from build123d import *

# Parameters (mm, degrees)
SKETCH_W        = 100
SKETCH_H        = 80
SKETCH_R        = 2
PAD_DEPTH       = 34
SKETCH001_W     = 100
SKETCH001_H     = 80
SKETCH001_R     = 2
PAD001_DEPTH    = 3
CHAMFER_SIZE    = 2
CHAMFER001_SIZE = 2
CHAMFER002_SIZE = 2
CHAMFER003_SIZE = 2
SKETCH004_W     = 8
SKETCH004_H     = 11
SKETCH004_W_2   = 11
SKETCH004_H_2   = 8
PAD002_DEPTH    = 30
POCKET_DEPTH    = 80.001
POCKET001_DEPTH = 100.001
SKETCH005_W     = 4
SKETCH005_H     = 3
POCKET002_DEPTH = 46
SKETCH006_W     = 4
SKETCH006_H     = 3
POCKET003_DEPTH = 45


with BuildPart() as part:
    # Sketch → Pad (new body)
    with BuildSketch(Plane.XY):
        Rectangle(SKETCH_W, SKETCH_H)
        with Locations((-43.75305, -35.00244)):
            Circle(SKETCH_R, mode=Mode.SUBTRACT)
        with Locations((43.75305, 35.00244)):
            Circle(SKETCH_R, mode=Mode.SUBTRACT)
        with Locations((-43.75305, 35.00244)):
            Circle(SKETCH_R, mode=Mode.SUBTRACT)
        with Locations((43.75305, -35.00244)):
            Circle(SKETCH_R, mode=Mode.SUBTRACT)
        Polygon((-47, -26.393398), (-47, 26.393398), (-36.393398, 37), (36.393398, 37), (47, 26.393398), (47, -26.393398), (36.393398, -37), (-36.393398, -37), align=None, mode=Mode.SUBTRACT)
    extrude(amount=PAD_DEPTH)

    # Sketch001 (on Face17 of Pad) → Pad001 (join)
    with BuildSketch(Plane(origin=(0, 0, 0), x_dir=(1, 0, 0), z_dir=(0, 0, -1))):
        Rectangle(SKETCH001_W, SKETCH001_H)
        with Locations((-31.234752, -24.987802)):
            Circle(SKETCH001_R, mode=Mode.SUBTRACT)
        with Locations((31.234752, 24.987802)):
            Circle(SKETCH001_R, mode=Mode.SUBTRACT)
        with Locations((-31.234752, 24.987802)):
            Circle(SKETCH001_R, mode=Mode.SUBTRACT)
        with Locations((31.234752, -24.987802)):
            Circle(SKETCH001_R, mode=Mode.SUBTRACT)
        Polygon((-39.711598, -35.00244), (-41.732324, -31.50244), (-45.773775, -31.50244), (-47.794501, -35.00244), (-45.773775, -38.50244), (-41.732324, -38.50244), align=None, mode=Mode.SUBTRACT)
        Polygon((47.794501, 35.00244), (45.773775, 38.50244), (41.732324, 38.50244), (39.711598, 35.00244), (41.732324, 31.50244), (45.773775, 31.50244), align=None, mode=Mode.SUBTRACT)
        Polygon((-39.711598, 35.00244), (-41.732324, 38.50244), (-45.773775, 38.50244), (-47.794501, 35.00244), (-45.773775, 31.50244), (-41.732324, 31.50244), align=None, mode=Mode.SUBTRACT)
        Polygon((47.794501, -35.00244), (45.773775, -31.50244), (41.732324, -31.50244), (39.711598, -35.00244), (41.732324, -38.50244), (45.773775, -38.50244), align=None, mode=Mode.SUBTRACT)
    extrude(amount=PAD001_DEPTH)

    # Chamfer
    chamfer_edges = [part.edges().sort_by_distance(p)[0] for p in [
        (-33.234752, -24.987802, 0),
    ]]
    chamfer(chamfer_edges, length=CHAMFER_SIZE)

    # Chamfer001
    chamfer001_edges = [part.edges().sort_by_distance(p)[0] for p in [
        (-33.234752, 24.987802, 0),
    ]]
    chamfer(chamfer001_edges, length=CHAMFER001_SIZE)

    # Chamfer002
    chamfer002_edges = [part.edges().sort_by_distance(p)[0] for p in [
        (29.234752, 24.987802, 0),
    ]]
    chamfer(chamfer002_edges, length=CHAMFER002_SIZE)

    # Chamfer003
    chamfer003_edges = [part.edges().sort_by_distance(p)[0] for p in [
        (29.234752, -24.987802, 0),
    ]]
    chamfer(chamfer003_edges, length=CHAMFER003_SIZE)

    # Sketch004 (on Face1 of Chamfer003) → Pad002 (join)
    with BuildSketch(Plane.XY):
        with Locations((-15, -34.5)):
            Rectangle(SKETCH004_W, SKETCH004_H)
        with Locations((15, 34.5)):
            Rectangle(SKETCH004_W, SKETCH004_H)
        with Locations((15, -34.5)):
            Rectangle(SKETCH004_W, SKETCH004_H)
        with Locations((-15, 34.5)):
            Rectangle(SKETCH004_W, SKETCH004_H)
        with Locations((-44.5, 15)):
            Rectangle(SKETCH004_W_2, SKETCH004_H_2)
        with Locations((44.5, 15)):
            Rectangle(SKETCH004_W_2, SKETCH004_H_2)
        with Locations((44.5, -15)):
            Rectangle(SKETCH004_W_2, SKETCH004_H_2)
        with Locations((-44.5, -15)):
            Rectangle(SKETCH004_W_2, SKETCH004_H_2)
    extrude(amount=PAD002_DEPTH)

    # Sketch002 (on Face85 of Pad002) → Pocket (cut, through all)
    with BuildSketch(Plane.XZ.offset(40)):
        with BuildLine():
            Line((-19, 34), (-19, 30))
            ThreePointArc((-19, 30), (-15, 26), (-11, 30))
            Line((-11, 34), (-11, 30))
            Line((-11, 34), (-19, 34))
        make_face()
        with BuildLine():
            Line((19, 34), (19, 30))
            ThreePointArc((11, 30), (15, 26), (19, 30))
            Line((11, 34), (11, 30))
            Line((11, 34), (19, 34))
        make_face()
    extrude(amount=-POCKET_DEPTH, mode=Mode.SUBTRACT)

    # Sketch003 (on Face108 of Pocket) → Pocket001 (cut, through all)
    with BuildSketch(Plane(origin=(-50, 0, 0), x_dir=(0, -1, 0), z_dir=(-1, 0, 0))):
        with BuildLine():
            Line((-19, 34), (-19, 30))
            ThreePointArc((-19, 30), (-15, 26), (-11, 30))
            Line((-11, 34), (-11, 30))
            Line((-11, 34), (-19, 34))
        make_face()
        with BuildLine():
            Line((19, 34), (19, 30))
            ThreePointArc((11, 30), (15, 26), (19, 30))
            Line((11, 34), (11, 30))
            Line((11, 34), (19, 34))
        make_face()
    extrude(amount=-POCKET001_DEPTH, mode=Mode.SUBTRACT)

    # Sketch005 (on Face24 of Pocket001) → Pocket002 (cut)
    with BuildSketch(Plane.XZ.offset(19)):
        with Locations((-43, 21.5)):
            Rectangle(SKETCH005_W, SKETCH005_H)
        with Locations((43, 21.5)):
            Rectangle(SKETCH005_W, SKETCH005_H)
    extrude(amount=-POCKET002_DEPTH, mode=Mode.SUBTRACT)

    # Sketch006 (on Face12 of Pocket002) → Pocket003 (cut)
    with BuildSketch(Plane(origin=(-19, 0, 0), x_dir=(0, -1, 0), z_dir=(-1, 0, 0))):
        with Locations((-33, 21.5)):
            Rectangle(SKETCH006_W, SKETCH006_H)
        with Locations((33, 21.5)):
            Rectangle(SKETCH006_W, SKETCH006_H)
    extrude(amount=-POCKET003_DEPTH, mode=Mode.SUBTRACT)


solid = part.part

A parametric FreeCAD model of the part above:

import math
import FreeCAD as App
import Part
import Sketcher
Q = App.Units.Quantity


def edges_at(feature, points):
    """Names of the edges that pass closest to the given points."""
    edges = feature.Shape.Edges
    near = lambda p: min(range(len(edges)), key=lambda i: edges[i].distToShape(Part.Vertex(*p))[0])
    return sorted({f"Edge{near(p) + 1}" for p in points})

doc = App.newDocument("Part")
params = doc.addObject("Spreadsheet::Sheet", "Params")
for row, (alias, value) in enumerate([
    ("sketch1_diameter", "4 mm"),
    ("sketch1_width", "100 mm"),
    ("sketch1_height", "80 mm"),
    ("sketch1_length", "15 mm"),
    ("pad1_length", "34 mm"),
    ("sketch2_diameter", "4 mm"),
    ("sketch2_width", "100 mm"),
    ("sketch2_height", "80 mm"),
    ("pad2_length", "3 mm"),
    ("chamfer_size", "2 mm"),
    ("chamfer2_size", "2 mm"),
    ("chamfer3_size", "2 mm"),
    ("chamfer4_size", "2 mm"),
    ("sketch3_width", "8 mm"),
    ("sketch3_width2", "11 mm"),
    ("pad3_length", "30 mm"),
    ("sketch4_radius", "4 mm"),
    ("sketch4_height", "4 mm"),
    ("sketch5_radius", "4 mm"),
    ("sketch5_height", "4 mm"),
    ("sketch6_width", "4 mm"),
    ("sketch6_height", "3 mm"),
    ("pocket3_length", "46 mm"),
    ("sketch7_width", "4 mm"),
    ("sketch7_height", "3 mm"),
    ("pocket4_length", "45 mm"),
], start=1):
    params.set(f"A{row}", alias)
    params.set(f"B{row}", "=" + value)
    params.setAlias(f"B{row}", alias)

body = doc.addObject("PartDesign::Body", "Body")

# Sketch on XY plane
sketch1 = body.newObject("Sketcher::SketchObject", "Sketch")
sketch1.AttachmentSupport = (doc.getObject("XY_Plane"), [""])
sketch1.MapMode = "FlatFace"
sketch1.addGeometry([
    Part.LineSegment(App.Vector(-50, 40, 0), App.Vector(-50, -40, 0)),  # 0
    Part.LineSegment(App.Vector(-50, -40, 0), App.Vector(50, -40, 0)),  # 1
    Part.LineSegment(App.Vector(50, -40, 0), App.Vector(50, 40, 0)),  # 2
    Part.LineSegment(App.Vector(50, 40, 0), App.Vector(-50, 40, 0)),  # 3
    Part.Circle(App.Vector(-43.8, -35, 0), App.Vector(0, 0, 1), 2),  # 4
    Part.Circle(App.Vector(43.8, -35, 0), App.Vector(0, 0, 1), 2),  # 5
    Part.Circle(App.Vector(-43.8, 35, 0), App.Vector(0, 0, 1), 2),  # 6
    Part.LineSegment(App.Vector(-36.4, -37, 0), App.Vector(-47, -26.4, 0)),  # 7
    Part.LineSegment(App.Vector(-47, -26.4, 0), App.Vector(-47, 26.4, 0)),  # 8
    Part.LineSegment(App.Vector(-47, 26.4, 0), App.Vector(-36.4, 37, 0)),  # 9
    Part.LineSegment(App.Vector(-36.4, 37, 0), App.Vector(36.4, 37, 0)),  # 10
    Part.LineSegment(App.Vector(36.4, 37, 0), App.Vector(47, 26.4, 0)),  # 11
    Part.LineSegment(App.Vector(47, 26.4, 0), App.Vector(47, -26.4, 0)),  # 12
    Part.LineSegment(App.Vector(47, -26.4, 0), App.Vector(36.4, -37, 0)),  # 13
    Part.LineSegment(App.Vector(36.4, -37, 0), App.Vector(-36.4, -37, 0)),  # 14
    Part.Circle(App.Vector(43.8, 35, 0), App.Vector(0, 0, 1), 2),  # 15
], False)
sketch1.addConstraint([
    Sketcher.Constraint("Coincident", 0, 2, 1, 1),
    Sketcher.Constraint("Coincident", 1, 2, 2, 1),
    Sketcher.Constraint("Coincident", 2, 2, 3, 1),
    Sketcher.Constraint("Coincident", 3, 2, 0, 1),
    Sketcher.Constraint("Coincident", 7, 2, 8, 1),
    Sketcher.Constraint("Coincident", 8, 2, 9, 1),
    Sketcher.Constraint("Coincident", 9, 2, 10, 1),
    Sketcher.Constraint("Coincident", 10, 2, 11, 1),
    Sketcher.Constraint("Coincident", 11, 2, 12, 1),
    Sketcher.Constraint("Coincident", 12, 2, 13, 1),
    Sketcher.Constraint("Coincident", 13, 2, 14, 1),
    Sketcher.Constraint("Coincident", 14, 2, 7, 1),
    Sketcher.Constraint("Vertical", 0),
    Sketcher.Constraint("Horizontal", 1),
    Sketcher.Constraint("Vertical", 2),
    Sketcher.Constraint("Horizontal", 3),
    Sketcher.Constraint("Vertical", 8),
    Sketcher.Constraint("Horizontal", 10),
    Sketcher.Constraint("Vertical", 12),
    Sketcher.Constraint("Horizontal", 14),
    Sketcher.Constraint("Equal", 4, 5),
    Sketcher.Constraint("Equal", 5, 6),
    Sketcher.Constraint("Equal", 6, 15),
    Sketcher.Constraint("Symmetric", 5, 3, 6, 3, -1, 1),
    Sketcher.Constraint("Symmetric", 4, 3, 15, 3, -1, 1),
    Sketcher.Constraint("Symmetric", 0, 2, 2, 2, -1, 1),
    Sketcher.Constraint("Symmetric", 7, 2, 11, 2, -1, 1),
    Sketcher.Constraint("Symmetric", 9, 2, 13, 2, -1, 1),
    Sketcher.Constraint("Symmetric", 4, 3, 5, 3, -2),
    Sketcher.Constraint("Perpendicular", 7, 9),
    Sketcher.Constraint("Perpendicular", 9, 11),
    Sketcher.Constraint("Perpendicular", 11, 13),
    Sketcher.Constraint("Horizontal", 8, 2, 11, 2),
    Sketcher.Constraint("Vertical", 10, 2, 13, 2),
    Sketcher.Constraint("Diameter", 4, Q("4 mm")),
    Sketcher.Constraint("DistanceX", 1, 1, 1, 2, Q("100 mm")),
    Sketcher.Constraint("DistanceY", 0, 2, 0, 1, Q("80 mm")),
    Sketcher.Constraint("Distance", 7, Q("15 mm")),
    Sketcher.Constraint("DistanceX", 7, 2, -1, 1, Q("47 mm")),
    Sketcher.Constraint("DistanceY", -1, 1, 9, 2, Q("37 mm")),
    Sketcher.Constraint("DistanceX", 4, 3, 5, 3, Q("87.5061 mm")),
    Sketcher.Constraint("DistanceY", 4, 3, -1, 1, Q("35.00244 mm")),
])
sketch1.setExpression("Constraints[34]", "Params.sketch1_diameter")
sketch1.setExpression("Constraints[35]", "Params.sketch1_width")
sketch1.setExpression("Constraints[36]", "Params.sketch1_height")
sketch1.setExpression("Constraints[37]", "Params.sketch1_length")
pad1 = body.newObject("PartDesign::Pad", "Pad")
pad1.Profile = sketch1
pad1.setExpression("Length", "Params.pad1_length")

# Sketch on XY plane
sketch2 = body.newObject("Sketcher::SketchObject", "Sketch001")
sketch2.AttachmentSupport = (doc.getObject("XY_Plane"), [""])
sketch2.MapMode = "FlatFace"
sketch2.addGeometry([
    Part.LineSegment(App.Vector(-50, -40, 0), App.Vector(-50, 40, 0)),  # 0
    Part.LineSegment(App.Vector(-50, 40, 0), App.Vector(50, 40, 0)),  # 1
    Part.LineSegment(App.Vector(50, 40, 0), App.Vector(50, -40, 0)),  # 2
    Part.LineSegment(App.Vector(50, -40, 0), App.Vector(-50, -40, 0)),  # 3
    Part.LineSegment(App.Vector(-41.7, 31.5, 0), App.Vector(-39.7, 35, 0)),  # 4
    Part.LineSegment(App.Vector(-39.7, 35, 0), App.Vector(-41.7, 38.5, 0)),  # 5
    Part.LineSegment(App.Vector(-41.7, 38.5, 0), App.Vector(-45.8, 38.5, 0)),  # 6
    Part.LineSegment(App.Vector(-45.8, 38.5, 0), App.Vector(-47.8, 35, 0)),  # 7
    Part.LineSegment(App.Vector(-47.8, 35, 0), App.Vector(-45.8, 31.5, 0)),  # 8
    Part.LineSegment(App.Vector(-45.8, 31.5, 0), App.Vector(-41.7, 31.5, 0)),  # 9
    Part.Circle(App.Vector(-31.2, 25, 0), App.Vector(0, 0, 1), 2),  # 10
    Part.LineSegment(App.Vector(45.8, 31.5, 0), App.Vector(47.8, 35, 0)),  # 11
    Part.LineSegment(App.Vector(47.8, 35, 0), App.Vector(45.8, 38.5, 0)),  # 12
    Part.LineSegment(App.Vector(45.8, 38.5, 0), App.Vector(41.7, 38.5, 0)),  # 13
    Part.LineSegment(App.Vector(41.7, 38.5, 0), App.Vector(39.7, 35, 0)),  # 14
    Part.LineSegment(App.Vector(39.7, 35, 0), App.Vector(41.7, 31.5, 0)),  # 15
    Part.LineSegment(App.Vector(41.7, 31.5, 0), App.Vector(45.8, 31.5, 0)),  # 16
    Part.Circle(App.Vector(31.2, 25, 0), App.Vector(0, 0, 1), 2),  # 17
    Part.Circle(App.Vector(-31.2, -25, 0), App.Vector(0, 0, 1), 2),  # 18
    Part.LineSegment(App.Vector(-41.7, -38.5, 0), App.Vector(-39.7, -35, 0)),  # 19
    Part.LineSegment(App.Vector(-39.7, -35, 0), App.Vector(-41.7, -31.5, 0)),  # 20
    Part.LineSegment(App.Vector(-41.7, -31.5, 0), App.Vector(-45.8, -31.5, 0)),  # 21
    Part.LineSegment(App.Vector(-45.8, -31.5, 0), App.Vector(-47.8, -35, 0)),  # 22
    Part.LineSegment(App.Vector(-47.8, -35, 0), App.Vector(-45.8, -38.5, 0)),  # 23
    Part.LineSegment(App.Vector(-45.8, -38.5, 0), App.Vector(-41.7, -38.5, 0)),  # 24
    Part.Circle(App.Vector(31.2, -25, 0), App.Vector(0, 0, 1), 2),  # 25
    Part.LineSegment(App.Vector(45.8, -38.5, 0), App.Vector(47.8, -35, 0)),  # 26
    Part.LineSegment(App.Vector(47.8, -35, 0), App.Vector(45.8, -31.5, 0)),  # 27
    Part.LineSegment(App.Vector(45.8, -31.5, 0), App.Vector(41.7, -31.5, 0)),  # 28
    Part.LineSegment(App.Vector(41.7, -31.5, 0), App.Vector(39.7, -35, 0)),  # 29
    Part.LineSegment(App.Vector(39.7, -35, 0), App.Vector(41.7, -38.5, 0)),  # 30
    Part.LineSegment(App.Vector(41.7, -38.5, 0), App.Vector(45.8, -38.5, 0)),  # 31
], False)
sketch2.addConstraint([
    Sketcher.Constraint("Coincident", 0, 2, 1, 1),
    Sketcher.Constraint("Coincident", 1, 2, 2, 1),
    Sketcher.Constraint("Coincident", 2, 2, 3, 1),
    Sketcher.Constraint("Coincident", 3, 2, 0, 1),
    Sketcher.Constraint("Coincident", 4, 2, 5, 1),
    Sketcher.Constraint("Coincident", 5, 2, 6, 1),
    Sketcher.Constraint("Coincident", 6, 2, 7, 1),
    Sketcher.Constraint("Coincident", 7, 2, 8, 1),
    Sketcher.Constraint("Coincident", 8, 2, 9, 1),
    Sketcher.Constraint("Coincident", 9, 2, 4, 1),
    Sketcher.Constraint("Coincident", 11, 2, 12, 1),
    Sketcher.Constraint("Coincident", 12, 2, 13, 1),
    Sketcher.Constraint("Coincident", 13, 2, 14, 1),
    Sketcher.Constraint("Coincident", 14, 2, 15, 1),
    Sketcher.Constraint("Coincident", 15, 2, 16, 1),
    Sketcher.Constraint("Coincident", 16, 2, 11, 1),
    Sketcher.Constraint("Coincident", 19, 2, 20, 1),
    Sketcher.Constraint("Coincident", 20, 2, 21, 1),
    Sketcher.Constraint("Coincident", 21, 2, 22, 1),
    Sketcher.Constraint("Coincident", 22, 2, 23, 1),
    Sketcher.Constraint("Coincident", 23, 2, 24, 1),
    Sketcher.Constraint("Coincident", 24, 2, 19, 1),
    Sketcher.Constraint("Coincident", 26, 2, 27, 1),
    Sketcher.Constraint("Coincident", 27, 2, 28, 1),
    Sketcher.Constraint("Coincident", 28, 2, 29, 1),
    Sketcher.Constraint("Coincident", 29, 2, 30, 1),
    Sketcher.Constraint("Coincident", 30, 2, 31, 1),
    Sketcher.Constraint("Coincident", 31, 2, 26, 1),
    Sketcher.Constraint("Vertical", 0),
    Sketcher.Constraint("Horizontal", 1),
    Sketcher.Constraint("Vertical", 2),
    Sketcher.Constraint("Horizontal", 3),
    Sketcher.Constraint("Horizontal", 6),
    Sketcher.Constraint("Horizontal", 9),
    Sketcher.Constraint("Horizontal", 13),
    Sketcher.Constraint("Horizontal", 16),
    Sketcher.Constraint("Horizontal", 21),
    Sketcher.Constraint("Horizontal", 24),
    Sketcher.Constraint("Horizontal", 28),
    Sketcher.Constraint("Horizontal", 31),
    Sketcher.Constraint("Equal", 10, 17),
    Sketcher.Constraint("Equal", 17, 18),
    Sketcher.Constraint("Equal", 18, 25),
    Sketcher.Constraint("Symmetric", 17, 3, 18, 3, -1, 1),
    Sketcher.Constraint("Symmetric", 10, 3, 25, 3, -1, 1),
    Sketcher.Constraint("Symmetric", 0, 2, 2, 2, -1, 1),
    Sketcher.Constraint("Symmetric", 14, 2, 19, 2, -1, 1),
    Sketcher.Constraint("Symmetric", 15, 2, 20, 2, -1, 1),
    Sketcher.Constraint("Symmetric", 11, 2, 22, 2, -1, 1),
    Sketcher.Constraint("Symmetric", 12, 2, 23, 2, -1, 1),
    Sketcher.Constraint("Symmetric", 7, 2, 26, 2, -1, 1),
    Sketcher.Constraint("Symmetric", 8, 2, 27, 2, -1, 1),
    Sketcher.Constraint("Symmetric", 4, 2, 29, 2, -1, 1),
    Sketcher.Constraint("Symmetric", 5, 2, 30, 2, -1, 1),
    Sketcher.Constraint("Symmetric", 10, 3, 17, 3, -2),
    Sketcher.Constraint("Symmetric", 7, 2, 11, 2, -2),
    Sketcher.Constraint("Symmetric", 6, 2, 12, 2, -2),
    Sketcher.Constraint("Symmetric", 4, 2, 14, 2, -2),
    Sketcher.Constraint("Symmetric", 9, 2, 15, 2, -2),
    Sketcher.Constraint("Parallel", 4, 7),
    Sketcher.Constraint("Parallel", 5, 8),
    Sketcher.Constraint("Parallel", 7, 11),
    Sketcher.Constraint("Parallel", 8, 12),
    Sketcher.Constraint("Parallel", 11, 14),
    Sketcher.Constraint("Parallel", 14, 19),
    Sketcher.Constraint("Parallel", 19, 22),
    Sketcher.Constraint("Parallel", 22, 26),
    Sketcher.Constraint("Parallel", 26, 29),
    Sketcher.Constraint("Horizontal", 4, 2, 7, 2),
    Sketcher.Constraint("Vertical", 6, 2, 8, 2),
    Sketcher.Constraint("Diameter", 10, Q("4 mm")),
    Sketcher.Constraint("DistanceX", 1, 1, 1, 2, Q("100 mm")),
    Sketcher.Constraint("DistanceY", 0, 1, 0, 2, Q("80 mm")),
    Sketcher.Constraint("Angle", 4, Q("59.999999 deg")),
    Sketcher.Constraint("DistanceY", 8, 2, 6, 2, Q("7 mm")),
    Sketcher.Constraint("DistanceX", 6, 2, 6, 1, Q("4.041451 mm")),
    Sketcher.Constraint("DistanceY", -1, 1, 10, 3, Q("24.987802 mm")),
    Sketcher.Constraint("DistanceX", 4, 2, -1, 1, Q("39.711598 mm")),
    Sketcher.Constraint("DistanceY", -1, 1, 4, 2, Q("35.00244 mm")),
    Sketcher.Constraint("DistanceX", 0, 2, 17, 3, Q("81.234752 mm")),
])
sketch2.setExpression("Constraints[70]", "Params.sketch2_diameter")
sketch2.setExpression("Constraints[71]", "Params.sketch2_width")
sketch2.setExpression("Constraints[72]", "Params.sketch2_height")
pad2 = body.newObject("PartDesign::Pad", "Pad001")
pad2.Profile = sketch2
pad2.setExpression("Length", "Params.pad2_length")
pad2.Reversed = True
doc.recompute()

chamfer = body.newObject("PartDesign::Chamfer", "Chamfer")
chamfer.Base = (pad2, edges_at(pad2, [(-33.235, -24.988, 0)]))
chamfer.setExpression("Size", "Params.chamfer_size")
doc.recompute()

chamfer2 = body.newObject("PartDesign::Chamfer", "Chamfer001")
chamfer2.Base = (chamfer, edges_at(chamfer, [(-33.235, 24.988, 0)]))
chamfer2.setExpression("Size", "Params.chamfer2_size")
doc.recompute()

chamfer3 = body.newObject("PartDesign::Chamfer", "Chamfer002")
chamfer3.Base = (chamfer2, edges_at(chamfer2, [(29.235, 24.988, 0)]))
chamfer3.setExpression("Size", "Params.chamfer3_size")
doc.recompute()

chamfer4 = body.newObject("PartDesign::Chamfer", "Chamfer003")
chamfer4.Base = (chamfer3, edges_at(chamfer3, [(29.235, -24.988, 0)]))
chamfer4.setExpression("Size", "Params.chamfer4_size")

# Sketch on XY plane
sketch3 = body.newObject("Sketcher::SketchObject", "Sketch002")
sketch3.AttachmentSupport = (doc.getObject("XY_Plane"), [""])
sketch3.MapMode = "FlatFace"
sketch3.addGeometry([
    Part.LineSegment(App.Vector(-19, -29, 0), App.Vector(-19, -40, 0)),  # 0
    Part.LineSegment(App.Vector(-19, -40, 0), App.Vector(-11, -40, 0)),  # 1
    Part.LineSegment(App.Vector(-11, -40, 0), App.Vector(-11, -29, 0)),  # 2
    Part.LineSegment(App.Vector(-11, -29, 0), App.Vector(-19, -29, 0)),  # 3
    Part.LineSegment(App.Vector(11, 40, 0), App.Vector(11, 29, 0)),  # 4
    Part.LineSegment(App.Vector(11, 29, 0), App.Vector(19, 29, 0)),  # 5
    Part.LineSegment(App.Vector(19, 29, 0), App.Vector(19, 40, 0)),  # 6
    Part.LineSegment(App.Vector(19, 40, 0), App.Vector(11, 40, 0)),  # 7
    Part.LineSegment(App.Vector(11, -29, 0), App.Vector(11, -40, 0)),  # 8
    Part.LineSegment(App.Vector(11, -40, 0), App.Vector(19, -40, 0)),  # 9
    Part.LineSegment(App.Vector(19, -40, 0), App.Vector(19, -29, 0)),  # 10
    Part.LineSegment(App.Vector(19, -29, 0), App.Vector(11, -29, 0)),  # 11
    Part.LineSegment(App.Vector(-19, 40, 0), App.Vector(-19, 29, 0)),  # 12
    Part.LineSegment(App.Vector(-19, 29, 0), App.Vector(-11, 29, 0)),  # 13
    Part.LineSegment(App.Vector(-11, 29, 0), App.Vector(-11, 40, 0)),  # 14
    Part.LineSegment(App.Vector(-11, 40, 0), App.Vector(-19, 40, 0)),  # 15
    Part.LineSegment(App.Vector(-50, 19, 0), App.Vector(-50, 11, 0)),  # 16
    Part.LineSegment(App.Vector(-50, 11, 0), App.Vector(-39, 11, 0)),  # 17
    Part.LineSegment(App.Vector(-39, 11, 0), App.Vector(-39, 19, 0)),  # 18
    Part.LineSegment(App.Vector(-39, 19, 0), App.Vector(-50, 19, 0)),  # 19
    Part.LineSegment(App.Vector(39, 19, 0), App.Vector(39, 11, 0)),  # 20
    Part.LineSegment(App.Vector(39, 11, 0), App.Vector(50, 11, 0)),  # 21
    Part.LineSegment(App.Vector(50, 11, 0), App.Vector(50, 19, 0)),  # 22
    Part.LineSegment(App.Vector(50, 19, 0), App.Vector(39, 19, 0)),  # 23
    Part.LineSegment(App.Vector(39, -11, 0), App.Vector(39, -19, 0)),  # 24
    Part.LineSegment(App.Vector(39, -19, 0), App.Vector(50, -19, 0)),  # 25
    Part.LineSegment(App.Vector(50, -19, 0), App.Vector(50, -11, 0)),  # 26
    Part.LineSegment(App.Vector(50, -11, 0), App.Vector(39, -11, 0)),  # 27
    Part.LineSegment(App.Vector(-50, -11, 0), App.Vector(-50, -19, 0)),  # 28
    Part.LineSegment(App.Vector(-50, -19, 0), App.Vector(-39, -19, 0)),  # 29
    Part.LineSegment(App.Vector(-39, -19, 0), App.Vector(-39, -11, 0)),  # 30
    Part.LineSegment(App.Vector(-39, -11, 0), App.Vector(-50, -11, 0)),  # 31
], False)
sketch3.addConstraint([
    Sketcher.Constraint("Coincident", 0, 2, 1, 1),
    Sketcher.Constraint("Coincident", 1, 2, 2, 1),
    Sketcher.Constraint("Coincident", 2, 2, 3, 1),
    Sketcher.Constraint("Coincident", 3, 2, 0, 1),
    Sketcher.Constraint("Coincident", 4, 2, 5, 1),
    Sketcher.Constraint("Coincident", 5, 2, 6, 1),
    Sketcher.Constraint("Coincident", 6, 2, 7, 1),
    Sketcher.Constraint("Coincident", 7, 2, 4, 1),
    Sketcher.Constraint("Coincident", 8, 2, 9, 1),
    Sketcher.Constraint("Coincident", 9, 2, 10, 1),
    Sketcher.Constraint("Coincident", 10, 2, 11, 1),
    Sketcher.Constraint("Coincident", 11, 2, 8, 1),
    Sketcher.Constraint("Coincident", 12, 2, 13, 1),
    Sketcher.Constraint("Coincident", 13, 2, 14, 1),
    Sketcher.Constraint("Coincident", 14, 2, 15, 1),
    Sketcher.Constraint("Coincident", 15, 2, 12, 1),
    Sketcher.Constraint("Coincident", 16, 2, 17, 1),
    Sketcher.Constraint("Coincident", 17, 2, 18, 1),
    Sketcher.Constraint("Coincident", 18, 2, 19, 1),
    Sketcher.Constraint("Coincident", 19, 2, 16, 1),
    Sketcher.Constraint("Coincident", 20, 2, 21, 1),
    Sketcher.Constraint("Coincident", 21, 2, 22, 1),
    Sketcher.Constraint("Coincident", 22, 2, 23, 1),
    Sketcher.Constraint("Coincident", 23, 2, 20, 1),
    Sketcher.Constraint("Coincident", 24, 2, 25, 1),
    Sketcher.Constraint("Coincident", 25, 2, 26, 1),
    Sketcher.Constraint("Coincident", 26, 2, 27, 1),
    Sketcher.Constraint("Coincident", 27, 2, 24, 1),
    Sketcher.Constraint("Coincident", 28, 2, 29, 1),
    Sketcher.Constraint("Coincident", 29, 2, 30, 1),
    Sketcher.Constraint("Coincident", 30, 2, 31, 1),
    Sketcher.Constraint("Coincident", 31, 2, 28, 1),
    Sketcher.Constraint("Vertical", 0),
    Sketcher.Constraint("Horizontal", 1),
    Sketcher.Constraint("Vertical", 2),
    Sketcher.Constraint("Horizontal", 3),
    Sketcher.Constraint("Vertical", 4),
    Sketcher.Constraint("Horizontal", 5),
    Sketcher.Constraint("Vertical", 6),
    Sketcher.Constraint("Horizontal", 7),
    Sketcher.Constraint("Vertical", 8),
    Sketcher.Constraint("Horizontal", 9),
    Sketcher.Constraint("Vertical", 10),
    Sketcher.Constraint("Horizontal", 11),
    Sketcher.Constraint("Vertical", 12),
    Sketcher.Constraint("Horizontal", 13),
    Sketcher.Constraint("Vertical", 14),
    Sketcher.Constraint("Horizontal", 15),
    Sketcher.Constraint("Vertical", 16),
    Sketcher.Constraint("Horizontal", 17),
    Sketcher.Constraint("Vertical", 18),
    Sketcher.Constraint("Horizontal", 19),
    Sketcher.Constraint("Vertical", 20),
    Sketcher.Constraint("Horizontal", 21),
    Sketcher.Constraint("Vertical", 22),
    Sketcher.Constraint("Horizontal", 23),
    Sketcher.Constraint("Vertical", 24),
    Sketcher.Constraint("Horizontal", 25),
    Sketcher.Constraint("Vertical", 26),
    Sketcher.Constraint("Horizontal", 27),
    Sketcher.Constraint("Vertical", 28),
    Sketcher.Constraint("Horizontal", 29),
    Sketcher.Constraint("Vertical", 30),
    Sketcher.Constraint("Horizontal", 31),
    Sketcher.Constraint("Symmetric", 2, 2, 4, 2, -1, 1),
    Sketcher.Constraint("Symmetric", 0, 2, 6, 2, -1, 1),
    Sketcher.Constraint("Symmetric", 10, 2, 12, 2, -1, 1),
    Sketcher.Constraint("Symmetric", 8, 2, 14, 2, -1, 1),
    Sketcher.Constraint("Symmetric", 18, 2, 24, 2, -1, 1),
    Sketcher.Constraint("Symmetric", 16, 2, 26, 2, -1, 1),
    Sketcher.Constraint("Symmetric", 22, 2, 28, 2, -1, 1),
    Sketcher.Constraint("Symmetric", 20, 2, 30, 2, -1, 1),
    Sketcher.Constraint("Symmetric", 1, 2, 8, 2, -2),
    Sketcher.Constraint("Symmetric", 3, 2, 10, 2, -2),
    Sketcher.Constraint("Symmetric", 17, 2, 20, 2, -2),
    Sketcher.Constraint("Symmetric", 19, 2, 22, 2, -2),
    Sketcher.Constraint("Equal", 31, 0),
    Sketcher.Constraint("Equal", 15, 16),
    Sketcher.Constraint("DistanceX", 1, 1, 1, 2, Q("8 mm")),
    Sketcher.Constraint("DistanceX", 17, 1, 17, 2, Q("11 mm")),
    Sketcher.Constraint("DistanceX", 0, 2, -1, 1, Q("19 mm")),
    Sketcher.Constraint("DistanceY", 0, 2, -1, 1, Q("40 mm")),
    Sketcher.Constraint("DistanceX", 16, 2, -1, 1, Q("50 mm")),
    Sketcher.Constraint("DistanceY", -1, 1, 16, 2, Q("11 mm")),
])
sketch3.setExpression("Constraints[78]", "Params.sketch3_width")
sketch3.setExpression("Constraints[79]", "Params.sketch3_width2")
pad3 = body.newObject("PartDesign::Pad", "Pad002")
pad3.Profile = sketch3
pad3.setExpression("Length", "Params.pad3_length")

# Sketch on XZ plane
sketch4 = body.newObject("Sketcher::SketchObject", "Sketch003")
sketch4.AttachmentSupport = (doc.getObject("XZ_Plane"), [""])
sketch4.MapMode = "FlatFace"
sketch4.AttachmentOffset = App.Placement(App.Vector(0, 0, 40), App.Rotation())
sketch4.addGeometry([
    Part.LineSegment(App.Vector(-19, 34, 0), App.Vector(-19, 30, 0)),  # 0
    Part.ArcOfCircle(Part.Circle(App.Vector(-15, 30, 0), App.Vector(0, 0, 1), 4), math.radians(180), math.radians(360)),  # 1
    Part.LineSegment(App.Vector(-11, 30, 0), App.Vector(-11, 34, 0)),  # 2
    Part.LineSegment(App.Vector(-11, 34, 0), App.Vector(-19, 34, 0)),  # 3
    Part.LineSegment(App.Vector(19, 30, 0), App.Vector(19, 34, 0)),  # 4
    Part.LineSegment(App.Vector(19, 34, 0), App.Vector(11, 34, 0)),  # 5
    Part.LineSegment(App.Vector(11, 34, 0), App.Vector(11, 30, 0)),  # 6
    Part.ArcOfCircle(Part.Circle(App.Vector(15, 30, 0), App.Vector(0, 0, 1), 4), math.radians(180), math.radians(360)),  # 7
], False)
sketch4.addConstraint([
    Sketcher.Constraint("Tangent", 0, 2, 1, 1),
    Sketcher.Constraint("Tangent", 1, 2, 2, 1),
    Sketcher.Constraint("Coincident", 2, 2, 3, 1),
    Sketcher.Constraint("Coincident", 3, 2, 0, 1),
    Sketcher.Constraint("Coincident", 4, 2, 5, 1),
    Sketcher.Constraint("Coincident", 5, 2, 6, 1),
    Sketcher.Constraint("Tangent", 6, 2, 7, 1),
    Sketcher.Constraint("Tangent", 7, 2, 4, 1),
    Sketcher.Constraint("Vertical", 0),
    Sketcher.Constraint("Vertical", 2),
    Sketcher.Constraint("Horizontal", 3),
    Sketcher.Constraint("Vertical", 4),
    Sketcher.Constraint("Horizontal", 5),
    Sketcher.Constraint("Vertical", 6),
    Sketcher.Constraint("Equal", 1, 7),
    Sketcher.Constraint("Symmetric", 1, 3, 7, 3, -2),
    Sketcher.Constraint("Horizontal", 3, 2, 4, 2),
    Sketcher.Constraint("Radius", 1, Q("4 mm")),
    Sketcher.Constraint("DistanceY", 0, 2, 0, 1, Q("4 mm")),
    Sketcher.Constraint("DistanceX", 1, 3, -1, 1, Q("15 mm")),
    Sketcher.Constraint("DistanceY", -1, 1, 1, 3, Q("30 mm")),
])
sketch4.setExpression("Constraints[17]", "Params.sketch4_radius")
sketch4.setExpression("Constraints[18]", "Params.sketch4_height")
pocket1 = body.newObject("PartDesign::Pocket", "Pocket")
pocket1.Profile = sketch4
pocket1.Type = "ThroughAll"

# Sketch on YZ plane
sketch5 = body.newObject("Sketcher::SketchObject", "Sketch004")
sketch5.AttachmentSupport = (doc.getObject("YZ_Plane"), [""])
sketch5.MapMode = "FlatFace"
sketch5.AttachmentOffset = App.Placement(App.Vector(0, 0, -50), App.Rotation())
sketch5.addGeometry([
    Part.LineSegment(App.Vector(19, 34, 0), App.Vector(19, 30, 0)),  # 0
    Part.ArcOfCircle(Part.Circle(App.Vector(15, 30, 0), App.Vector(0, 0, 1), 4), math.radians(180), math.radians(360)),  # 1
    Part.LineSegment(App.Vector(11, 30, 0), App.Vector(11, 34, 0)),  # 2
    Part.LineSegment(App.Vector(11, 34, 0), App.Vector(19, 34, 0)),  # 3
    Part.LineSegment(App.Vector(-19, 30, 0), App.Vector(-19, 34, 0)),  # 4
    Part.LineSegment(App.Vector(-19, 34, 0), App.Vector(-11, 34, 0)),  # 5
    Part.LineSegment(App.Vector(-11, 34, 0), App.Vector(-11, 30, 0)),  # 6
    Part.ArcOfCircle(Part.Circle(App.Vector(-15, 30, 0), App.Vector(0, 0, 1), 4), math.radians(180), math.radians(360)),  # 7
], False)
sketch5.addConstraint([
    Sketcher.Constraint("Tangent", 0, 2, 1, 2),
    Sketcher.Constraint("Tangent", 1, 1, 2, 1),
    Sketcher.Constraint("Coincident", 2, 2, 3, 1),
    Sketcher.Constraint("Coincident", 3, 2, 0, 1),
    Sketcher.Constraint("Coincident", 4, 2, 5, 1),
    Sketcher.Constraint("Coincident", 5, 2, 6, 1),
    Sketcher.Constraint("Tangent", 6, 2, 7, 2),
    Sketcher.Constraint("Tangent", 7, 1, 4, 1),
    Sketcher.Constraint("Vertical", 0),
    Sketcher.Constraint("Vertical", 2),
    Sketcher.Constraint("Horizontal", 3),
    Sketcher.Constraint("Vertical", 4),
    Sketcher.Constraint("Horizontal", 5),
    Sketcher.Constraint("Vertical", 6),
    Sketcher.Constraint("Equal", 1, 7),
    Sketcher.Constraint("Symmetric", 1, 3, 7, 3, -2),
    Sketcher.Constraint("Horizontal", 3, 2, 4, 2),
    Sketcher.Constraint("Radius", 1, Q("4 mm")),
    Sketcher.Constraint("DistanceY", 0, 2, 0, 1, Q("4 mm")),
    Sketcher.Constraint("DistanceX", -1, 1, 1, 3, Q("15 mm")),
    Sketcher.Constraint("DistanceY", -1, 1, 1, 3, Q("30 mm")),
])
sketch5.setExpression("Constraints[17]", "Params.sketch5_radius")
sketch5.setExpression("Constraints[18]", "Params.sketch5_height")
pocket2 = body.newObject("PartDesign::Pocket", "Pocket001")
pocket2.Profile = sketch5
pocket2.Type = "ThroughAll"
pocket2.Reversed = True

# Sketch on XZ plane
sketch6 = body.newObject("Sketcher::SketchObject", "Sketch005")
sketch6.AttachmentSupport = (doc.getObject("XZ_Plane"), [""])
sketch6.MapMode = "FlatFace"
sketch6.AttachmentOffset = App.Placement(App.Vector(0, 0, 19), App.Rotation())
sketch6.addGeometry([
    Part.LineSegment(App.Vector(-45, 23, 0), App.Vector(-45, 20, 0)),  # 0
    Part.LineSegment(App.Vector(-45, 20, 0), App.Vector(-41, 20, 0)),  # 1
    Part.LineSegment(App.Vector(-41, 20, 0), App.Vector(-41, 23, 0)),  # 2
    Part.LineSegment(App.Vector(-41, 23, 0), App.Vector(-45, 23, 0)),  # 3
    Part.LineSegment(App.Vector(41, 23, 0), App.Vector(41, 20, 0)),  # 4
    Part.LineSegment(App.Vector(41, 20, 0), App.Vector(45, 20, 0)),  # 5
    Part.LineSegment(App.Vector(45, 20, 0), App.Vector(45, 23, 0)),  # 6
    Part.LineSegment(App.Vector(45, 23, 0), App.Vector(41, 23, 0)),  # 7
], False)
sketch6.addConstraint([
    Sketcher.Constraint("Coincident", 0, 2, 1, 1),
    Sketcher.Constraint("Coincident", 1, 2, 2, 1),
    Sketcher.Constraint("Coincident", 2, 2, 3, 1),
    Sketcher.Constraint("Coincident", 3, 2, 0, 1),
    Sketcher.Constraint("Coincident", 4, 2, 5, 1),
    Sketcher.Constraint("Coincident", 5, 2, 6, 1),
    Sketcher.Constraint("Coincident", 6, 2, 7, 1),
    Sketcher.Constraint("Coincident", 7, 2, 4, 1),
    Sketcher.Constraint("Vertical", 0),
    Sketcher.Constraint("Horizontal", 1),
    Sketcher.Constraint("Vertical", 2),
    Sketcher.Constraint("Horizontal", 3),
    Sketcher.Constraint("Vertical", 4),
    Sketcher.Constraint("Horizontal", 5),
    Sketcher.Constraint("Vertical", 6),
    Sketcher.Constraint("Horizontal", 7),
    Sketcher.Constraint("Symmetric", 1, 2, 4, 2, -2),
    Sketcher.Constraint("Symmetric", 3, 2, 6, 2, -2),
    Sketcher.Constraint("DistanceX", 1, 1, 1, 2, Q("4 mm")),
    Sketcher.Constraint("DistanceY", 0, 2, 0, 1, Q("3 mm")),
    Sketcher.Constraint("DistanceX", 0, 2, -1, 1, Q("45 mm")),
    Sketcher.Constraint("DistanceY", -1, 1, 0, 2, Q("20 mm")),
])
sketch6.setExpression("Constraints[18]", "Params.sketch6_width")
sketch6.setExpression("Constraints[19]", "Params.sketch6_height")
pocket3 = body.newObject("PartDesign::Pocket", "Pocket002")
pocket3.Profile = sketch6
pocket3.setExpression("Length", "Params.pocket3_length")

# Sketch on YZ plane
sketch7 = body.newObject("Sketcher::SketchObject", "Sketch006")
sketch7.AttachmentSupport = (doc.getObject("YZ_Plane"), [""])
sketch7.MapMode = "FlatFace"
sketch7.AttachmentOffset = App.Placement(App.Vector(0, 0, -19), App.Rotation())
sketch7.addGeometry([
    Part.LineSegment(App.Vector(35, 23, 0), App.Vector(35, 20, 0)),  # 0
    Part.LineSegment(App.Vector(35, 20, 0), App.Vector(31, 20, 0)),  # 1
    Part.LineSegment(App.Vector(31, 20, 0), App.Vector(31, 23, 0)),  # 2
    Part.LineSegment(App.Vector(31, 23, 0), App.Vector(35, 23, 0)),  # 3
    Part.LineSegment(App.Vector(-31, 23, 0), App.Vector(-31, 20, 0)),  # 4
    Part.LineSegment(App.Vector(-31, 20, 0), App.Vector(-35, 20, 0)),  # 5
    Part.LineSegment(App.Vector(-35, 20, 0), App.Vector(-35, 23, 0)),  # 6
    Part.LineSegment(App.Vector(-35, 23, 0), App.Vector(-31, 23, 0)),  # 7
], False)
sketch7.addConstraint([
    Sketcher.Constraint("Coincident", 0, 2, 1, 1),
    Sketcher.Constraint("Coincident", 1, 2, 2, 1),
    Sketcher.Constraint("Coincident", 2, 2, 3, 1),
    Sketcher.Constraint("Coincident", 3, 2, 0, 1),
    Sketcher.Constraint("Coincident", 4, 2, 5, 1),
    Sketcher.Constraint("Coincident", 5, 2, 6, 1),
    Sketcher.Constraint("Coincident", 6, 2, 7, 1),
    Sketcher.Constraint("Coincident", 7, 2, 4, 1),
    Sketcher.Constraint("Vertical", 0),
    Sketcher.Constraint("Horizontal", 1),
    Sketcher.Constraint("Vertical", 2),
    Sketcher.Constraint("Horizontal", 3),
    Sketcher.Constraint("Vertical", 4),
    Sketcher.Constraint("Horizontal", 5),
    Sketcher.Constraint("Vertical", 6),
    Sketcher.Constraint("Horizontal", 7),
    Sketcher.Constraint("Symmetric", 1, 2, 4, 2, -2),
    Sketcher.Constraint("Symmetric", 3, 2, 6, 2, -2),
    Sketcher.Constraint("DistanceX", 1, 2, 1, 1, Q("4 mm")),
    Sketcher.Constraint("DistanceY", 0, 2, 0, 1, Q("3 mm")),
    Sketcher.Constraint("DistanceX", -1, 1, 0, 2, Q("35 mm")),
    Sketcher.Constraint("DistanceY", -1, 1, 0, 2, Q("20 mm")),
])
sketch7.setExpression("Constraints[18]", "Params.sketch7_width")
sketch7.setExpression("Constraints[19]", "Params.sketch7_height")
pocket4 = body.newObject("PartDesign::Pocket", "Pocket003")
pocket4.Profile = sketch7
pocket4.setExpression("Length", "Params.pocket4_length")
pocket4.Reversed = True

doc.recompute()
